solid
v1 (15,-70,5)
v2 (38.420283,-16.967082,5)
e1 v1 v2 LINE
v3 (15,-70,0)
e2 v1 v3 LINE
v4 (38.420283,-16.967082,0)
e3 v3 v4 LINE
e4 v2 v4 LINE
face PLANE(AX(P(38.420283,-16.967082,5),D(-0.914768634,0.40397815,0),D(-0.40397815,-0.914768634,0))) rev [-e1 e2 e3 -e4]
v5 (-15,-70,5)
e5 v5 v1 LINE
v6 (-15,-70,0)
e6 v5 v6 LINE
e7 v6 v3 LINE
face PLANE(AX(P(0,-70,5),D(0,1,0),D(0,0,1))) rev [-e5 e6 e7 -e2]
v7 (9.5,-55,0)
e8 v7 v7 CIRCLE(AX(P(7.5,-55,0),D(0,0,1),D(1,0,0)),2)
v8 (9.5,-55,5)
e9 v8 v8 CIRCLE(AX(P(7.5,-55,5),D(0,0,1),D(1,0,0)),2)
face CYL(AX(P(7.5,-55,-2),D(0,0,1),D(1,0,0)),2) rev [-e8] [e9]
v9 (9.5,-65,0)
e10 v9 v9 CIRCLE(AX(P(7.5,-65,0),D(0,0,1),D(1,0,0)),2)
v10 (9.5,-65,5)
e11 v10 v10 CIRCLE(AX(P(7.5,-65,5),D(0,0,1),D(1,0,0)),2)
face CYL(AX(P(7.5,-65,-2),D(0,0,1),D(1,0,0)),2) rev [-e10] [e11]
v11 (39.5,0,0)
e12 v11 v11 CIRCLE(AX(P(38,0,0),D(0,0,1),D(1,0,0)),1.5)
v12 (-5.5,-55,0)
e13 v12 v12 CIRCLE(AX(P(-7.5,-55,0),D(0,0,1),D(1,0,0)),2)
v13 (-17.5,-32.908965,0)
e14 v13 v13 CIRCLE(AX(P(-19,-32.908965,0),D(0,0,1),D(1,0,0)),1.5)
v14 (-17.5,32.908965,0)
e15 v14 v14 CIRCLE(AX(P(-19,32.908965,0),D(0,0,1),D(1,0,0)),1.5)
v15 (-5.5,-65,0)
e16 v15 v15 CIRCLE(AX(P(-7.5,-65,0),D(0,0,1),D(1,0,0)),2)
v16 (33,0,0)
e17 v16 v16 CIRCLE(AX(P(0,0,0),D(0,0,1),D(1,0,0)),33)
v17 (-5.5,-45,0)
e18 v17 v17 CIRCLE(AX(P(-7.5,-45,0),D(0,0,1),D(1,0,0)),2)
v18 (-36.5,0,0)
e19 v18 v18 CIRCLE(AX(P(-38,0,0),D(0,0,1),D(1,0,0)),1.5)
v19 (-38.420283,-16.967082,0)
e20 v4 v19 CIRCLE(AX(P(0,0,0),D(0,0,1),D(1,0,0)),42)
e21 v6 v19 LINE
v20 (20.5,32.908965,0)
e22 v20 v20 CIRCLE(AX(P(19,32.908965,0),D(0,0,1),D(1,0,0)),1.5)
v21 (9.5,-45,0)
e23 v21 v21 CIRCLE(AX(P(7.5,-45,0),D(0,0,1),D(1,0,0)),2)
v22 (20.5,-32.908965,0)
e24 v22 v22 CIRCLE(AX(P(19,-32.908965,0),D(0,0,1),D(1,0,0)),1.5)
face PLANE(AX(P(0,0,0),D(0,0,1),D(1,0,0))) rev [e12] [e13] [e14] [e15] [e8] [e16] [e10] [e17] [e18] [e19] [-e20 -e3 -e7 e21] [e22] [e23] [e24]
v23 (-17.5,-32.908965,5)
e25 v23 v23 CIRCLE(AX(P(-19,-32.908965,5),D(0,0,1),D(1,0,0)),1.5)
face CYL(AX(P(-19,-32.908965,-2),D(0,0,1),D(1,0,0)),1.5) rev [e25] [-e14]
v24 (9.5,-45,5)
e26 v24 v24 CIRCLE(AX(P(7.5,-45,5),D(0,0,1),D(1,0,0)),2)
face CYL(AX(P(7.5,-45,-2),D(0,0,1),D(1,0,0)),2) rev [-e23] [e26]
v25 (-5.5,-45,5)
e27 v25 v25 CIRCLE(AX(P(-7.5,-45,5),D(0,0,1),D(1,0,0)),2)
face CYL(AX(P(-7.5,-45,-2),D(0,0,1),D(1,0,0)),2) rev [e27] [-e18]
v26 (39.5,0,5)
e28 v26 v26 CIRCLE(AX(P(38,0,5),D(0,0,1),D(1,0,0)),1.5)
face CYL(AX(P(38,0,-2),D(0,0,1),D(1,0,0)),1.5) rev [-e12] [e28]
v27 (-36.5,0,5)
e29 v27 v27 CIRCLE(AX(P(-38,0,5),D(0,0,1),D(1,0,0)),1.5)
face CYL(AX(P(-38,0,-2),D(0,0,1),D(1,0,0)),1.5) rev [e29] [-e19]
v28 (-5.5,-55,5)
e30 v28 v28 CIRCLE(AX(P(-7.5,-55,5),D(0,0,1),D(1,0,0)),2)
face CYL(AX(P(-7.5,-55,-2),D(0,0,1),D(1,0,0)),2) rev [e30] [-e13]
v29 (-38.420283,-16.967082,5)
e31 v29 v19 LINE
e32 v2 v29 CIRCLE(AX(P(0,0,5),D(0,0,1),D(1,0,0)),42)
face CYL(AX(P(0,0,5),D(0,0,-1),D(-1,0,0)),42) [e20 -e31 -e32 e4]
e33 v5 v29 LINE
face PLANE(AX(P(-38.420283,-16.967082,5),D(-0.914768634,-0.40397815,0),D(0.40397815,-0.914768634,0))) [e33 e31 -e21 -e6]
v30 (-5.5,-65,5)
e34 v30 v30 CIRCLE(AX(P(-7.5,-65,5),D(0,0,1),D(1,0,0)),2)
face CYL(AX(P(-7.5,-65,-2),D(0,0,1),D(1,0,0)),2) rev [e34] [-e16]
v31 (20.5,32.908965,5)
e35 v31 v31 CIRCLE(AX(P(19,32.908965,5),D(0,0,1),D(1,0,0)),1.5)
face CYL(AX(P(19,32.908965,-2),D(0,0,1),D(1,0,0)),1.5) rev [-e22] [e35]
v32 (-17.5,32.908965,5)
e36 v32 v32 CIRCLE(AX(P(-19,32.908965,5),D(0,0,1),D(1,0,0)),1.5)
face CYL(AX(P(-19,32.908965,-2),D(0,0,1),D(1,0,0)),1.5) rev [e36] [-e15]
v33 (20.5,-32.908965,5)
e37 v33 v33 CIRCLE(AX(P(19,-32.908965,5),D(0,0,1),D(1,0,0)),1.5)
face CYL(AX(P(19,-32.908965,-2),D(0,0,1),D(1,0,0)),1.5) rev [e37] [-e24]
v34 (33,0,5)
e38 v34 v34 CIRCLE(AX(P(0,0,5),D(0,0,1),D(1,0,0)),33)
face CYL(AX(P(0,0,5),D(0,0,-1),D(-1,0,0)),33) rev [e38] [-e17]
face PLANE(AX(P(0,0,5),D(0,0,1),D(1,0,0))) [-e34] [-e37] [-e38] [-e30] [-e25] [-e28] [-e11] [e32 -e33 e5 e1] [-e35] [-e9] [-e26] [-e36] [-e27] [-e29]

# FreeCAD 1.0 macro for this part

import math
import FreeCAD as App
import Part
import Sketcher
from FreeCAD import Vector

doc = App.newDocument("Part")
body = doc.addObject("PartDesign::Body", "Body")

# Sketch on XY plane
sketch1 = doc.addObject("Sketcher::SketchObject", "Sketch")
body.addObject(sketch1)
sketch1.AttachmentSupport = (doc.XY_Plane, [""])
sketch1.MapMode = "FlatFace"
sketch1.addGeometry([
    Part.LineSegment(Vector(-38, -17, 0), Vector(-15, -70, 0)),  # 0
    Part.LineSegment(Vector(-15, -70, 0), Vector(15, -70, 0)),  # 1
    Part.LineSegment(Vector(15, -70, 0), Vector(38, -17, 0)),  # 2
    Part.ArcOfCircle(Part.Circle(Vector(0, 0, 0), Vector(0, 0, 1), 42), math.radians(-24), math.radians(204)),  # 3
    Part.Circle(Vector(0, 0, 0), Vector(0, 0, 1), 33),  # 4
], False)
sketch1.addConstraint([
    Sketcher.Constraint("Coincident", 0, 2, 1, 1),
    Sketcher.Constraint("Coincident", 1, 2, 2, 1),
    Sketcher.Constraint("Tangent", 2, 2, 3, 1),
    Sketcher.Constraint("Tangent", 3, 2, 0, 1),
    Sketcher.Constraint("Horizontal", 1),
    Sketcher.Constraint("Coincident", 3, 3, -1, 1),
    Sketcher.Constraint("Coincident", 4, 3, -1, 1),
    Sketcher.Constraint("Horizontal", 2, 2, 3, 2),
    Sketcher.Constraint("Diameter", 4, 66.0),
    Sketcher.Constraint("Radius", 3, 42.0),
    Sketcher.Constraint("DistanceX", 1, 1, 1, 2, 30.0),
    Sketcher.Constraint("DistanceY", 0, 2, -1, 1, 70.0),
])
pad1 = doc.addObject("PartDesign::Pad", "Pad")
body.addObject(pad1)
pad1.Profile = sketch1
pad1.Length = 5

# Sketch on XY plane
sketch2 = doc.addObject("Sketcher::SketchObject", "Sketch001")
body.addObject(sketch2)
sketch2.AttachmentSupport = (doc.XY_Plane, [""])
sketch2.MapMode = "FlatFace"
sketch2.AttachmentOffset = App.Placement(Vector(0, 0, 5), App.Rotation())
sketch2.addGeometry([
    Part.Circle(Vector(19, 32.9, 0), Vector(0, 0, 1), 1.5),  # 0
    Part.Circle(Vector(38, 0, 0), Vector(0, 0, 1), 1.5),  # 1
    Part.Circle(Vector(19, -32.9, 0), Vector(0, 0, 1), 1.5),  # 2
    Part.Circle(Vector(-19, -32.9, 0), Vector(0, 0, 1), 1.5),  # 3
    Part.Circle(Vector(-38, 0, 0), Vector(0, 0, 1), 1.5),  # 4
    Part.Circle(Vector(-19, 32.9, 0), Vector(0, 0, 1), 1.5),  # 5
], False)
sketch2.addConstraint([
    Sketcher.Constraint("Equal", 0, 1),
    Sketcher.Constraint("Equal", 1, 2),
    Sketcher.Constraint("Equal", 2, 3),
    Sketcher.Constraint("Equal", 3, 4),
    Sketcher.Constraint("Equal", 4, 5),
    Sketcher.Constraint("Symmetric", 0, 3, 3, 3, -1, 1),
    Sketcher.Constraint("Symmetric", 1, 3, 4, 3, -1, 1),
    Sketcher.Constraint("Symmetric", 2, 3, 5, 3, -1, 1),
    Sketcher.Constraint("Symmetric", 2, 3, 3, 3, -2),
    Sketcher.Constraint("PointOnObject", 1, 3, -1),
    Sketcher.Constraint("Diameter", 0, 3.0),
    Sketcher.Constraint("DistanceX", -1, 1, 0, 3, 19.0),
    Sketcher.Constraint("DistanceX", -1, 1, 1, 3, 38.0),
    Sketcher.Constraint("DistanceY", 2, 3, 0, 3, 65.817931),
])
pocket1 = doc.addObject("PartDesign::Pocket", "Pocket")
body.addObject(pocket1)
pocket1.Profile = sketch2
pocket1.Length = 7

# Sketch on XY plane
sketch3 = doc.addObject("Sketcher::SketchObject", "Sketch002")
body.addObject(sketch3)
sketch3.AttachmentSupport = (doc.XY_Plane, [""])
sketch3.MapMode = "FlatFace"
sketch3.AttachmentOffset = App.Placement(Vector(0, 0, 5), App.Rotation())
sketch3.addGeometry([
    Part.Circle(Vector(7.5, -55, 0), Vector(0, 0, 1), 2),  # 0
    Part.Circle(Vector(7.5, -65, 0), Vector(0, 0, 1), 2),  # 1
    Part.Circle(Vector(-7.5, -65, 0), Vector(0, 0, 1), 2),  # 2
    Part.Circle(Vector(-7.5, -55, 0), Vector(0, 0, 1), 2),  # 3
    Part.Circle(Vector(-7.5, -45, 0), Vector(0, 0, 1), 2),  # 4
    Part.Circle(Vector(7.5, -45, 0), Vector(0, 0, 1), 2),  # 5
], False)
sketch3.addConstraint([
    Sketcher.Constraint("Equal", 0, 1),
    Sketcher.Constraint("Equal", 1, 2),
    Sketcher.Constraint("Equal", 2, 3),
    Sketcher.Constraint("Equal", 3, 4),
    Sketcher.Constraint("Equal", 4, 5),
    Sketcher.Constraint("Symmetric", 1, 3, 2, 3, -2),
    Sketcher.Constraint("Symmetric", 0, 3, 3, 3, -2),
    Sketcher.Constraint("Symmetric", 4, 3, 5, 3, -2),
    Sketcher.Constraint("Vertical", 0, 3, 1, 3),
    Sketcher.Constraint("Vertical", 3, 3, 4, 3),
    Sketcher.Constraint("Diameter", 0, 4.0),
    Sketcher.Constraint("DistanceY", 0, 3, -1, 1, 55.0),
    Sketcher.Constraint("DistanceY", 1, 3, -1, 1, 65.0),
    Sketcher.Constraint("DistanceY", 4, 3, -1, 1, 45.0),
    Sketcher.Constraint("DistanceX", 2, 3, 1, 3, 15.0),
])
pocket2 = doc.addObject("PartDesign::Pocket", "Pocket001")
body.addObject(pocket2)
pocket2.Profile = sketch3
pocket2.Length = 7

doc.recompute()
